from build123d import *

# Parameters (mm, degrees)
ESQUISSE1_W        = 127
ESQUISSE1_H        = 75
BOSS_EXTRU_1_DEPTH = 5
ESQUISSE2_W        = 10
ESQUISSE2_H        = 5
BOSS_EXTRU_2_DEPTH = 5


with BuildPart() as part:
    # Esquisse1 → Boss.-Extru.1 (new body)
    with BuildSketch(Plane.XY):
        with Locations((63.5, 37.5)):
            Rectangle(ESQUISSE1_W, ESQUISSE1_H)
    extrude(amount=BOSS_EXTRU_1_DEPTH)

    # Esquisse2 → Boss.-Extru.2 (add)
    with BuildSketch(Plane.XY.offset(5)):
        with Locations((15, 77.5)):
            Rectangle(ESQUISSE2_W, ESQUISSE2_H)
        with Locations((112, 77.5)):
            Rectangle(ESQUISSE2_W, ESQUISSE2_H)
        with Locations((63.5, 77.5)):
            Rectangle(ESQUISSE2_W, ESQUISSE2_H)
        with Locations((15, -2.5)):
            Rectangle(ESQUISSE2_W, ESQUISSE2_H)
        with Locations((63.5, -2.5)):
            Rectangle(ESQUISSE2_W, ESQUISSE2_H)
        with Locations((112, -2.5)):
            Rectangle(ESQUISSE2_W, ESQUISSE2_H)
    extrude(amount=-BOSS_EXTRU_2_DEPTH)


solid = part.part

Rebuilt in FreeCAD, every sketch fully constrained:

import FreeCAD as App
import Part
import Sketcher
Q = App.Units.Quantity


def add_polygon(sketch, points):
    """Adds a closed chain of lines whose ends are joined by coincident constraints."""
    first, n = sketch.GeometryCount, len(points)
    for a, b in zip(points, points[1:] + points[:1]):
        sketch.addGeometry(Part.LineSegment(App.Vector(*a, 0), App.Vector(*b, 0)), False)
    for i in range(n):
        sketch.addConstraint(Sketcher.Constraint("Coincident", first + i, 2, first + (i + 1) % n, 1))

doc = App.newDocument("Part")
body = doc.addObject("PartDesign::Body", "Body")

# Sketch on XY plane
sketch1 = body.newObject("Sketcher::SketchObject", "Sketch")
sketch1.AttachmentSupport = (doc.getObject("XY_Plane"), [""])
sketch1.MapMode = "FlatFace"
add_polygon(sketch1, [(0, 75), (0, 0), (127, 0), (127, 75)])  # lines 0-3
sketch1.addConstraint(Sketcher.Constraint("Vertical", 0))
sketch1.addConstraint(Sketcher.Constraint("Horizontal", 1))
sketch1.addConstraint(Sketcher.Constraint("Vertical", 2))
sketch1.addConstraint(Sketcher.Constraint("Horizontal", 3))
sketch1.addConstraint(Sketcher.Constraint("Coincident", 0, 2, -1, 1))
sketch1.addConstraint(Sketcher.Constraint("DistanceX", 1, 1, 1, 2, Q("127 mm")))
sketch1.addConstraint(Sketcher.Constraint("DistanceY", 0, 2, 0, 1, Q("75 mm")))
pad1 = body.newObject("PartDesign::Pad", "Pad")
pad1.Profile = sketch1
pad1.Length = 5

# Sketch on XY plane
sketch2 = body.newObject("Sketcher::SketchObject", "Sketch001")
sketch2.AttachmentSupport = (doc.getObject("XY_Plane"), [""])
sketch2.MapMode = "FlatFace"
sketch2.AttachmentOffset = App.Placement(App.Vector(0, 0, 5), App.Rotation())
add_polygon(sketch2, [(10, 80), (10, 75), (20, 75), (20, 80)])  # lines 0-3
add_polygon(sketch2, [(107, 80), (107, 75), (117, 75), (117, 80)])  # lines 4-7
add_polygon(sketch2, [(58.5, 80), (58.5, 75), (68.5, 75), (68.5, 80)])  # lines 8-11
add_polygon(sketch2, [(10, 0), (10, -5), (20, -5), (20, 0)])  # lines 12-15
add_polygon(sketch2, [(58.5, 0), (58.5, -5), (68.5, -5), (68.5, 0)])  # lines 16-19
add_polygon(sketch2, [(107, 0), (107, -5), (117, -5), (117, 0)])  # lines 20-23
sketch2.addConstraint(Sketcher.Constraint("Vertical", 0))
sketch2.addConstraint(Sketcher.Constraint("Horizontal", 1))
sketch2.addConstraint(Sketcher.Constraint("Vertical", 2))
sketch2.addConstraint(Sketcher.Constraint("Horizontal", 3))
sketch2.addConstraint(Sketcher.Constraint("Vertical", 4))
sketch2.addConstraint(Sketcher.Constraint("Horizontal", 5))
sketch2.addConstraint(Sketcher.Constraint("Vertical", 6))
sketch2.addConstraint(Sketcher.Constraint("Horizontal", 7))
sketch2.addConstraint(Sketcher.Constraint("Vertical", 8))
sketch2.addConstraint(Sketcher.Constraint("Horizontal", 9))
sketch2.addConstraint(Sketcher.Constraint("Vertical", 10))
sketch2.addConstraint(Sketcher.Constraint("Horizontal", 11))
sketch2.addConstraint(Sketcher.Constraint("Vertical", 12))
sketch2.addConstraint(Sketcher.Constraint("Horizontal", 13))
sketch2.addConstraint(Sketcher.Constraint("Vertical", 14))
sketch2.addConstraint(Sketcher.Constraint("Horizontal", 15))
sketch2.addConstraint(Sketcher.Constraint("Vertical", 16))
sketch2.addConstraint(Sketcher.Constraint("Horizontal", 17))
sketch2.addConstraint(Sketcher.Constraint("Vertical", 18))
sketch2.addConstraint(Sketcher.Constraint("Horizontal", 19))
sketch2.addConstraint(Sketcher.Constraint("Vertical", 20))
sketch2.addConstraint(Sketcher.Constraint("Horizontal", 21))
sketch2.addConstraint(Sketcher.Constraint("Vertical", 22))
sketch2.addConstraint(Sketcher.Constraint("Horizontal", 23))
sketch2.addConstraint(Sketcher.Constraint("PointOnObject", 14, 2, -1))
sketch2.addConstraint(Sketcher.Constraint("PointOnObject", 18, 2, -1))
sketch2.addConstraint(Sketcher.Constraint("PointOnObject", 22, 2, -1))
sketch2.addConstraint(Sketcher.Constraint("Horizontal", 1, 2, 4, 2))
sketch2.addConstraint(Sketcher.Constraint("Horizontal", 3, 2, 6, 2))
sketch2.addConstraint(Sketcher.Constraint("Horizontal", 5, 2, 8, 2))
sketch2.addConstraint(Sketcher.Constraint("Horizontal", 7, 2, 10, 2))
sketch2.addConstraint(Sketcher.Constraint("Horizontal", 13, 2, 16, 2))
sketch2.addConstraint(Sketcher.Constraint("Horizontal", 17, 2, 20, 2))
sketch2.addConstraint(Sketcher.Constraint("Vertical", 3, 2, 12, 2))
sketch2.addConstraint(Sketcher.Constraint("Vertical", 2, 2, 13, 2))
sketch2.addConstraint(Sketcher.Constraint("Vertical", 11, 2, 16, 2))
sketch2.addConstraint(Sketcher.Constraint("Vertical", 10, 2, 17, 2))
sketch2.addConstraint(Sketcher.Constraint("Vertical", 7, 2, 20, 2))
sketch2.addConstraint(Sketcher.Constraint("Vertical", 6, 2, 21, 2))
sketch2.addConstraint(Sketcher.Constraint("Equal", 3, 5))
sketch2.addConstraint(Sketcher.Constraint("Equal", 7, 9))
sketch2.addConstraint(Sketcher.Constraint("Equal", 10, 12))
sketch2.addConstraint(Sketcher.Constraint("DistanceX", 1, 1, 1, 2, Q("10 mm")))
sketch2.addConstraint(Sketcher.Constraint("DistanceY", 0, 2, 0, 1, Q("5 mm")))
sketch2.addConstraint(Sketcher.Constraint("DistanceX", -1, 1, 0, 2, Q("10 mm")))
sketch2.addConstraint(Sketcher.Constraint("DistanceY", -1, 1, 0, 2, Q("75 mm")))
sketch2.addConstraint(Sketcher.Constraint("DistanceX", -1, 1, 4, 2, Q("107 mm")))
sketch2.addConstraint(Sketcher.Constraint("DistanceX", -1, 1, 8, 2, Q("58.5 mm")))
pad2 = body.newObject("PartDesign::Pad", "Pad001")
pad2.Profile = sketch2
pad2.Length = 5
pad2.Reversed = True

doc.recompute()
